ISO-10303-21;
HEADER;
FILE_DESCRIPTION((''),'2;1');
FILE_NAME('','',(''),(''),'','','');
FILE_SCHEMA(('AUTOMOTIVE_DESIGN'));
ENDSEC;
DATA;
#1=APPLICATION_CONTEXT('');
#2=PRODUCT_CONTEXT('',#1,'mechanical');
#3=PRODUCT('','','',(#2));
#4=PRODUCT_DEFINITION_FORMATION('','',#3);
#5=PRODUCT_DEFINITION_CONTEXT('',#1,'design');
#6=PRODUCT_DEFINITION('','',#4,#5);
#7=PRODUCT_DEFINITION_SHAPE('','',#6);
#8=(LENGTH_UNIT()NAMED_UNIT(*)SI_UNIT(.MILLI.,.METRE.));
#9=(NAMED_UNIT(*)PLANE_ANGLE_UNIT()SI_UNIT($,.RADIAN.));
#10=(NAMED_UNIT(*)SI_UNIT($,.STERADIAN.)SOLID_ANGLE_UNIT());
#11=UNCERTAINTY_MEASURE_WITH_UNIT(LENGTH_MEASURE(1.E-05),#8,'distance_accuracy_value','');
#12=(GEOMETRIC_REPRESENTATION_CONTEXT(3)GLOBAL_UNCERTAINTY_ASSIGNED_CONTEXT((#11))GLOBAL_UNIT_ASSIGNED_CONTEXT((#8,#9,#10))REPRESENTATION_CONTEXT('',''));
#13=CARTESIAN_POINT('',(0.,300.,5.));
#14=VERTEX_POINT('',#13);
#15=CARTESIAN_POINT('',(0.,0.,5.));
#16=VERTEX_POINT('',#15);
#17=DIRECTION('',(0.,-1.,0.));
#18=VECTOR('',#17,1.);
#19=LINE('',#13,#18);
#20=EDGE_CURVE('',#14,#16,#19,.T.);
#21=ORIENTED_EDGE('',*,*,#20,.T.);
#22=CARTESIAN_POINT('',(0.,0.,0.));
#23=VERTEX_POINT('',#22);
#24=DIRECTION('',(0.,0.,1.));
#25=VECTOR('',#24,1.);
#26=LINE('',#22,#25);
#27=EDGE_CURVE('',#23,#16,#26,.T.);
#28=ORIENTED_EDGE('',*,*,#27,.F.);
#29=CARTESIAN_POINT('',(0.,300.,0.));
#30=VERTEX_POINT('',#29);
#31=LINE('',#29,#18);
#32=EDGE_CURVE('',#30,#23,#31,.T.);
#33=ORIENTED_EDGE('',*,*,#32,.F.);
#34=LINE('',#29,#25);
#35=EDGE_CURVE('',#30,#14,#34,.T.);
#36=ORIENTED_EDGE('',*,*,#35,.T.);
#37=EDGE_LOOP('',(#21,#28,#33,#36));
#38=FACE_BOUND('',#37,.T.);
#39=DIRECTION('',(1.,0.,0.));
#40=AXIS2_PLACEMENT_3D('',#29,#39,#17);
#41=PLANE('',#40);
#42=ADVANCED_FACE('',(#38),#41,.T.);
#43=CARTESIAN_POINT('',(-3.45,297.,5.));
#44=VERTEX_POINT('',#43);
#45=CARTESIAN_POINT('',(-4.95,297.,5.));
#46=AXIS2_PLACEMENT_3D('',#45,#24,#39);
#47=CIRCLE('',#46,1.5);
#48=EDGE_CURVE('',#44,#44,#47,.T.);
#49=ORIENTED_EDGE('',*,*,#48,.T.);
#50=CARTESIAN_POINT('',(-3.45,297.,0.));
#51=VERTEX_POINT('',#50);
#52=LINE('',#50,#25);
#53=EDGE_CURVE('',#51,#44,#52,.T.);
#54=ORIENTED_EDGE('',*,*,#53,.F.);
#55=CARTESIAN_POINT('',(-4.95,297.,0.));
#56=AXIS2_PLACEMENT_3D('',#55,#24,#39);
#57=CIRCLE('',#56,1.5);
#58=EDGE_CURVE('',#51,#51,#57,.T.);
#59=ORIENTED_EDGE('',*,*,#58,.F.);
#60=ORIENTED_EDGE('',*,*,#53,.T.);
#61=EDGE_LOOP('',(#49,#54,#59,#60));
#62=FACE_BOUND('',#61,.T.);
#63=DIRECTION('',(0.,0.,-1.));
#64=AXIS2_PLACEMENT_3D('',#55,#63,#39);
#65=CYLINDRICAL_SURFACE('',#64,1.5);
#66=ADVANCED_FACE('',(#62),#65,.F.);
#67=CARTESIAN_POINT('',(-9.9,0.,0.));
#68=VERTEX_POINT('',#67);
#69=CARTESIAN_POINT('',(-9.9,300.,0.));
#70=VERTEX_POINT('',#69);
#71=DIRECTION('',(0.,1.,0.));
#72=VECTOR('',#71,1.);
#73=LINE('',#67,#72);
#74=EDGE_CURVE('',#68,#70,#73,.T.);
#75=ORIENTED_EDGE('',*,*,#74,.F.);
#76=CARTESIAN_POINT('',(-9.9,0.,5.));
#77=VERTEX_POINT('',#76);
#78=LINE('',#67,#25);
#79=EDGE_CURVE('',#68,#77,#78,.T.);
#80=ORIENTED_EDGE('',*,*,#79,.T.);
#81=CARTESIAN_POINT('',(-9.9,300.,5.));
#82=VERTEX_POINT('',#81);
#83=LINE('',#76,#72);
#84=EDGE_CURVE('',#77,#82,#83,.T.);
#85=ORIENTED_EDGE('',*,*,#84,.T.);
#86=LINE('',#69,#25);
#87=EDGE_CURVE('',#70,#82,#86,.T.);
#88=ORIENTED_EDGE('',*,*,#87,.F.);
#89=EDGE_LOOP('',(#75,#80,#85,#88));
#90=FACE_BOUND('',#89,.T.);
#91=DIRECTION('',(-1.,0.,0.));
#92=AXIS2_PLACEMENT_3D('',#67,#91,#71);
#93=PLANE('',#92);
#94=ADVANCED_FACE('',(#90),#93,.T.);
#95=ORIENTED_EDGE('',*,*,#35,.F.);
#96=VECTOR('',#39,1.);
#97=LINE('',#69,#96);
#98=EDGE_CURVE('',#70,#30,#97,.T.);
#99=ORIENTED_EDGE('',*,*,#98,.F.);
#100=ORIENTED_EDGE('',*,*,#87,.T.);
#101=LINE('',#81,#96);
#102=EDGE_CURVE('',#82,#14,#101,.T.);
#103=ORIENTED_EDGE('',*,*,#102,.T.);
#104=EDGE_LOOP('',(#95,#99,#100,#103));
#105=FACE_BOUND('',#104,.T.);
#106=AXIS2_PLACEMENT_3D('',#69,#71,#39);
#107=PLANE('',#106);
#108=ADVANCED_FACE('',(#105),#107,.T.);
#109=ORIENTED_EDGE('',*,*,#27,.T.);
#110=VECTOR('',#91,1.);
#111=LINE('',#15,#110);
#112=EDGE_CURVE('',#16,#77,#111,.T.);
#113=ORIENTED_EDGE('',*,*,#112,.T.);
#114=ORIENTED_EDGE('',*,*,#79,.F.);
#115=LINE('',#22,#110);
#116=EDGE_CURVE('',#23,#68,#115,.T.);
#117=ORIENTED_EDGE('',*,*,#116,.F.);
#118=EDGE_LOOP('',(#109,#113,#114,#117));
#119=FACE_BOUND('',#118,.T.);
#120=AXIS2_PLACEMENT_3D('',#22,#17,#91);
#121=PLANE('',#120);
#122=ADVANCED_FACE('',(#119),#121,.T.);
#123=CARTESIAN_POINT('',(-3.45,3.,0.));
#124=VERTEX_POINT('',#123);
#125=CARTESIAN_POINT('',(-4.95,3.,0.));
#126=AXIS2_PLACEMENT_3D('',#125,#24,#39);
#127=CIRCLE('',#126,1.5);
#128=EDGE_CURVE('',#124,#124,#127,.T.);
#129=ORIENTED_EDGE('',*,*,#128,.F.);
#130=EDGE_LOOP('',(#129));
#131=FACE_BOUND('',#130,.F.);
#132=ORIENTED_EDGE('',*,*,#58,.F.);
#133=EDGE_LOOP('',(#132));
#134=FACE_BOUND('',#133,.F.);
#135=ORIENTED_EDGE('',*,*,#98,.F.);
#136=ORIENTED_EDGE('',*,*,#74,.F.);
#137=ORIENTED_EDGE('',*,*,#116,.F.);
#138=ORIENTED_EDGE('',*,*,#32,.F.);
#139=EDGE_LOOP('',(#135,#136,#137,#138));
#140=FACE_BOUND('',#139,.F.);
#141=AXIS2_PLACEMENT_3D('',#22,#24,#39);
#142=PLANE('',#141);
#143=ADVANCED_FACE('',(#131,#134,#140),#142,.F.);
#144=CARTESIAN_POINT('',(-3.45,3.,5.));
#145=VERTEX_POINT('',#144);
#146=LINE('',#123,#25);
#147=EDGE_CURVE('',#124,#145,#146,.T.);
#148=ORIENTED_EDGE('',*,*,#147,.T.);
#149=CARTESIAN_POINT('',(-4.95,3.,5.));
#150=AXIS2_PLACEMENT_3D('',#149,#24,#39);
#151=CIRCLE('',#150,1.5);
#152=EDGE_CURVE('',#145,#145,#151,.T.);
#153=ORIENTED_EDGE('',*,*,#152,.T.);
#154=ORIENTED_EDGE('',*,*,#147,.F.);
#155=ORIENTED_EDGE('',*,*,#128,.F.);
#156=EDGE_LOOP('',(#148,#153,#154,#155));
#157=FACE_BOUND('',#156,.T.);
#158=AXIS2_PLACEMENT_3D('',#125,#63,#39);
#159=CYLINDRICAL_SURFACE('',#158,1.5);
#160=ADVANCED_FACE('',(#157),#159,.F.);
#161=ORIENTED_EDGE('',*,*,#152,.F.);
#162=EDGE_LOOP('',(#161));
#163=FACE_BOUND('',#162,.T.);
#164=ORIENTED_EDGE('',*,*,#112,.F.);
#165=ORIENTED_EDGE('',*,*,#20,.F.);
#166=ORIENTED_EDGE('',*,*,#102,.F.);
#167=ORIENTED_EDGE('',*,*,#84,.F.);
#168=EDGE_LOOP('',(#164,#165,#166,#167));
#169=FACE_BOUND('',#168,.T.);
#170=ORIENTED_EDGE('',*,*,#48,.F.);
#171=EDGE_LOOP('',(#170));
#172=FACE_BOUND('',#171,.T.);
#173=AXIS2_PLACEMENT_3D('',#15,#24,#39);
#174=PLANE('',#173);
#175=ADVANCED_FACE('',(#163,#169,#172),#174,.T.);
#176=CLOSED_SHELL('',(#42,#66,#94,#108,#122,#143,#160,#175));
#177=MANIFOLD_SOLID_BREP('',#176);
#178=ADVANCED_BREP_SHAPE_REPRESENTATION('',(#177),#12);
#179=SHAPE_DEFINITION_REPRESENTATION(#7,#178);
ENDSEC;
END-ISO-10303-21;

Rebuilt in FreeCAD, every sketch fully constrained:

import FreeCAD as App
import Part
import Sketcher
from FreeCAD import Vector
Q = App.Units.Quantity

doc = App.newDocument("Part")
body = doc.addObject("PartDesign::Body", "Body")

# Sketch on XY plane
sketch1 = body.newObject("Sketcher::SketchObject", "Sketch")
sketch1.AttachmentSupport = (doc.getObject("XY_Plane"), [""])
sketch1.MapMode = "FlatFace"
sketch1.addGeometry(Part.LineSegment(Vector(-9.9, 0, 0), Vector(0, 0, 0)), False)
sketch1.addGeometry(Part.LineSegment(Vector(0, 0, 0), Vector(0, 300, 0)), False)
sketch1.addGeometry(Part.LineSegment(Vector(0, 300, 0), Vector(-9.9, 300, 0)), False)
sketch1.addGeometry(Part.LineSegment(Vector(-9.9, 300, 0), Vector(-9.9, 0, 0)), False)
sketch1.addGeometry(Part.Circle(Vector(-4.95, 3, 0), Vector(0, 0, 1), 1.5), False)
sketch1.addGeometry(Part.Circle(Vector(-4.95, 297, 0), Vector(0, 0, 1), 1.5), False)
sketch1.addConstraint(Sketcher.Constraint("Coincident", 0, 2, 1, 1))
sketch1.addConstraint(Sketcher.Constraint("Coincident", 1, 2, 2, 1))
sketch1.addConstraint(Sketcher.Constraint("Coincident", 2, 2, 3, 1))
sketch1.addConstraint(Sketcher.Constraint("Coincident", 3, 2, 0, 1))
sketch1.addConstraint(Sketcher.Constraint("Horizontal", 0))
sketch1.addConstraint(Sketcher.Constraint("Vertical", 1))
sketch1.addConstraint(Sketcher.Constraint("Horizontal", 2))
sketch1.addConstraint(Sketcher.Constraint("Vertical", 3))
sketch1.addConstraint(Sketcher.Constraint("Coincident", 0, 2, -1, 1))
sketch1.addConstraint(Sketcher.Constraint("Equal", 4, 5))
sketch1.addConstraint(Sketcher.Constraint("Vertical", 4, 3, 5, 3))
sketch1.addConstraint(Sketcher.Constraint("Diameter", 4, Q("3 mm")))
sketch1.addConstraint(Sketcher.Constraint("DistanceY", 1, 1, 1, 2, Q("300 mm")))
sketch1.addConstraint(Sketcher.Constraint("DistanceX", 0, 1, 0, 2, Q("9.9 mm")))
sketch1.addConstraint(Sketcher.Constraint("DistanceY", -1, 1, 4, 3, Q("3 mm")))
sketch1.addConstraint(Sketcher.Constraint("DistanceY", 5, 3, 1, 2, Q("3 mm")))
sketch1.addConstraint(Sketcher.Constraint("DistanceX", 4, 3, -1, 1, Q("4.95 mm")))
pad1 = body.newObject("PartDesign::Pad", "Pad")
pad1.Profile = sketch1
pad1.Length = 5

doc.recompute()
